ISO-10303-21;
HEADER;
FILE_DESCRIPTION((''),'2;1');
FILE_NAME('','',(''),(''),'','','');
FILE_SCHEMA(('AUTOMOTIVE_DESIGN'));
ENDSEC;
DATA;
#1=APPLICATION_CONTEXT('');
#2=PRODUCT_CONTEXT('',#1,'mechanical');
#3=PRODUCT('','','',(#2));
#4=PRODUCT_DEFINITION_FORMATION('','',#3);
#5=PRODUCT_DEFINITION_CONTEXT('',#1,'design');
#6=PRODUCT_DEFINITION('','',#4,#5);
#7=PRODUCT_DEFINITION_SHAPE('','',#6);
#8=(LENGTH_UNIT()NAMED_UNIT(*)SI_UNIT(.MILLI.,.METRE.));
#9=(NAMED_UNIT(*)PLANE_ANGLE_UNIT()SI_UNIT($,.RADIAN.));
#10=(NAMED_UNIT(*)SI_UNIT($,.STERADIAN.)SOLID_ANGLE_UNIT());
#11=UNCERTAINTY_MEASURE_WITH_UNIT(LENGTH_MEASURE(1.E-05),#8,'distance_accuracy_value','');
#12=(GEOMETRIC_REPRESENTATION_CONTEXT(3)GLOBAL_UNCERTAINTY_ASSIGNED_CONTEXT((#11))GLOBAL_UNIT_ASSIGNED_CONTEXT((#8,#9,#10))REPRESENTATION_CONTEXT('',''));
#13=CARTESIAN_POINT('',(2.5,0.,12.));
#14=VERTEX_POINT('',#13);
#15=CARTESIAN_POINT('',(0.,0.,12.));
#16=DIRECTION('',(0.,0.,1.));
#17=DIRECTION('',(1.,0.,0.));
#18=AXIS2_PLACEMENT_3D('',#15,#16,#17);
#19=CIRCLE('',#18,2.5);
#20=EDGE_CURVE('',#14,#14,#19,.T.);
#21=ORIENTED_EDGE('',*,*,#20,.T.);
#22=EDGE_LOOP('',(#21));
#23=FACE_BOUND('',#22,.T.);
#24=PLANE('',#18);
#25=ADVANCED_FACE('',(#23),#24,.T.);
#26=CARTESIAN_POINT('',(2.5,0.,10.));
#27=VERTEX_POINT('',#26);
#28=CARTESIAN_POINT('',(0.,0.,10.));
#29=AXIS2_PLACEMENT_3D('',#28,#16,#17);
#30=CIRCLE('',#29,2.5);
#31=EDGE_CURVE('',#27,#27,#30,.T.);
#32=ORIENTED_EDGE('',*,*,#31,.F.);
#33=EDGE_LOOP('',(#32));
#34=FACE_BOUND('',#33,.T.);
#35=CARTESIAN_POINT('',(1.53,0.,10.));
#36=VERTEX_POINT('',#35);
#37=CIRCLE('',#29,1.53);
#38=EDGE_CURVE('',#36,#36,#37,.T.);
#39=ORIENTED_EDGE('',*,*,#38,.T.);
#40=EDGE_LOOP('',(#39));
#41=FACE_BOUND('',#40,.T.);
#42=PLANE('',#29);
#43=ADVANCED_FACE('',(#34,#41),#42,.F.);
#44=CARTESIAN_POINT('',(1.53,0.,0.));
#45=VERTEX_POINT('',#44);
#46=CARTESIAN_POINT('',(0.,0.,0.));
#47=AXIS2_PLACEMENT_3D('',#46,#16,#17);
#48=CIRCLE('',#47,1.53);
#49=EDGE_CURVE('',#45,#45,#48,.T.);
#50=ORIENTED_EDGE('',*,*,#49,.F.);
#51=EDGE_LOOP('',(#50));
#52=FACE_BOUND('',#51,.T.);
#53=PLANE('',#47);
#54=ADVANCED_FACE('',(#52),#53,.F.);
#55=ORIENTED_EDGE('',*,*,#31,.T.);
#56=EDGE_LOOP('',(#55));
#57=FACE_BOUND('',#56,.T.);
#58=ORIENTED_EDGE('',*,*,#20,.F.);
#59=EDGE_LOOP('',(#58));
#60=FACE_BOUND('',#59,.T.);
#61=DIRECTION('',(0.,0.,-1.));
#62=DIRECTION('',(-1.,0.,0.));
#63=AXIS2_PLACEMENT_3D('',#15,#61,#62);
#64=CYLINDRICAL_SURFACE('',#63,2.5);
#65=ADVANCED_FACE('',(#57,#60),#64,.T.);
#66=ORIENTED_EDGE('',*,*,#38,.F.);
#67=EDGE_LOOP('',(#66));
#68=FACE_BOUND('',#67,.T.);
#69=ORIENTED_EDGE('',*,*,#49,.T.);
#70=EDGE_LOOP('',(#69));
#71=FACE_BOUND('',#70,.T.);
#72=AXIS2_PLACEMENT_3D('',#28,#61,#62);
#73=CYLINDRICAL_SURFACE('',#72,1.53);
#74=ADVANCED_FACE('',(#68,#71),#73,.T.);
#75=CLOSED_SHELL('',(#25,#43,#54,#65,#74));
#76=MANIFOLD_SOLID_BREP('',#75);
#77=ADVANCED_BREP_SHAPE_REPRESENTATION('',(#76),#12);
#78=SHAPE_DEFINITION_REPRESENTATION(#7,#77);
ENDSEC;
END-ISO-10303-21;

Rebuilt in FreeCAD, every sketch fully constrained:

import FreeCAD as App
import Part
import Sketcher

V = App.Vector
Q = App.Units.Quantity

doc = App.newDocument("Part")
body = doc.addObject("PartDesign::Body", "Body")

sketch1 = body.newObject("Sketcher::SketchObject", "Sketch")
sketch1.AttachmentSupport = (doc.getObject("XY_Plane"), [""])
sketch1.MapMode = "FlatFace"
sketch1.addGeometry(Part.Circle(V(0, 0, 0), V(0, 0, 1), 1.5), False)
sketch1.addConstraint(Sketcher.Constraint("Coincident", 0, 3, -1, 1))
sketch1.addConstraint(Sketcher.Constraint("Diameter", 0, Q("3.06 mm")))
pad1 = body.newObject("PartDesign::Pad", "Pad")
pad1.Profile = sketch1
pad1.Length = 10

sketch2 = body.newObject("Sketcher::SketchObject", "Sketch001")
sketch2.AttachmentSupport = (doc.getObject("XY_Plane"), [""])
sketch2.MapMode = "FlatFace"
sketch2.AttachmentOffset = App.Placement(V(0, 0, 10), App.Rotation())
sketch2.addGeometry(Part.Circle(V(0, 0, 0), V(0, 0, 1), 2.5), False)
sketch2.addConstraint(Sketcher.Constraint("Coincident", 0, 3, -1, 1))
sketch2.addConstraint(Sketcher.Constraint("Diameter", 0, Q("5 mm")))
pad2 = body.newObject("PartDesign::Pad", "Pad001")
pad2.Profile = sketch2
pad2.Length = 2

doc.recompute()
